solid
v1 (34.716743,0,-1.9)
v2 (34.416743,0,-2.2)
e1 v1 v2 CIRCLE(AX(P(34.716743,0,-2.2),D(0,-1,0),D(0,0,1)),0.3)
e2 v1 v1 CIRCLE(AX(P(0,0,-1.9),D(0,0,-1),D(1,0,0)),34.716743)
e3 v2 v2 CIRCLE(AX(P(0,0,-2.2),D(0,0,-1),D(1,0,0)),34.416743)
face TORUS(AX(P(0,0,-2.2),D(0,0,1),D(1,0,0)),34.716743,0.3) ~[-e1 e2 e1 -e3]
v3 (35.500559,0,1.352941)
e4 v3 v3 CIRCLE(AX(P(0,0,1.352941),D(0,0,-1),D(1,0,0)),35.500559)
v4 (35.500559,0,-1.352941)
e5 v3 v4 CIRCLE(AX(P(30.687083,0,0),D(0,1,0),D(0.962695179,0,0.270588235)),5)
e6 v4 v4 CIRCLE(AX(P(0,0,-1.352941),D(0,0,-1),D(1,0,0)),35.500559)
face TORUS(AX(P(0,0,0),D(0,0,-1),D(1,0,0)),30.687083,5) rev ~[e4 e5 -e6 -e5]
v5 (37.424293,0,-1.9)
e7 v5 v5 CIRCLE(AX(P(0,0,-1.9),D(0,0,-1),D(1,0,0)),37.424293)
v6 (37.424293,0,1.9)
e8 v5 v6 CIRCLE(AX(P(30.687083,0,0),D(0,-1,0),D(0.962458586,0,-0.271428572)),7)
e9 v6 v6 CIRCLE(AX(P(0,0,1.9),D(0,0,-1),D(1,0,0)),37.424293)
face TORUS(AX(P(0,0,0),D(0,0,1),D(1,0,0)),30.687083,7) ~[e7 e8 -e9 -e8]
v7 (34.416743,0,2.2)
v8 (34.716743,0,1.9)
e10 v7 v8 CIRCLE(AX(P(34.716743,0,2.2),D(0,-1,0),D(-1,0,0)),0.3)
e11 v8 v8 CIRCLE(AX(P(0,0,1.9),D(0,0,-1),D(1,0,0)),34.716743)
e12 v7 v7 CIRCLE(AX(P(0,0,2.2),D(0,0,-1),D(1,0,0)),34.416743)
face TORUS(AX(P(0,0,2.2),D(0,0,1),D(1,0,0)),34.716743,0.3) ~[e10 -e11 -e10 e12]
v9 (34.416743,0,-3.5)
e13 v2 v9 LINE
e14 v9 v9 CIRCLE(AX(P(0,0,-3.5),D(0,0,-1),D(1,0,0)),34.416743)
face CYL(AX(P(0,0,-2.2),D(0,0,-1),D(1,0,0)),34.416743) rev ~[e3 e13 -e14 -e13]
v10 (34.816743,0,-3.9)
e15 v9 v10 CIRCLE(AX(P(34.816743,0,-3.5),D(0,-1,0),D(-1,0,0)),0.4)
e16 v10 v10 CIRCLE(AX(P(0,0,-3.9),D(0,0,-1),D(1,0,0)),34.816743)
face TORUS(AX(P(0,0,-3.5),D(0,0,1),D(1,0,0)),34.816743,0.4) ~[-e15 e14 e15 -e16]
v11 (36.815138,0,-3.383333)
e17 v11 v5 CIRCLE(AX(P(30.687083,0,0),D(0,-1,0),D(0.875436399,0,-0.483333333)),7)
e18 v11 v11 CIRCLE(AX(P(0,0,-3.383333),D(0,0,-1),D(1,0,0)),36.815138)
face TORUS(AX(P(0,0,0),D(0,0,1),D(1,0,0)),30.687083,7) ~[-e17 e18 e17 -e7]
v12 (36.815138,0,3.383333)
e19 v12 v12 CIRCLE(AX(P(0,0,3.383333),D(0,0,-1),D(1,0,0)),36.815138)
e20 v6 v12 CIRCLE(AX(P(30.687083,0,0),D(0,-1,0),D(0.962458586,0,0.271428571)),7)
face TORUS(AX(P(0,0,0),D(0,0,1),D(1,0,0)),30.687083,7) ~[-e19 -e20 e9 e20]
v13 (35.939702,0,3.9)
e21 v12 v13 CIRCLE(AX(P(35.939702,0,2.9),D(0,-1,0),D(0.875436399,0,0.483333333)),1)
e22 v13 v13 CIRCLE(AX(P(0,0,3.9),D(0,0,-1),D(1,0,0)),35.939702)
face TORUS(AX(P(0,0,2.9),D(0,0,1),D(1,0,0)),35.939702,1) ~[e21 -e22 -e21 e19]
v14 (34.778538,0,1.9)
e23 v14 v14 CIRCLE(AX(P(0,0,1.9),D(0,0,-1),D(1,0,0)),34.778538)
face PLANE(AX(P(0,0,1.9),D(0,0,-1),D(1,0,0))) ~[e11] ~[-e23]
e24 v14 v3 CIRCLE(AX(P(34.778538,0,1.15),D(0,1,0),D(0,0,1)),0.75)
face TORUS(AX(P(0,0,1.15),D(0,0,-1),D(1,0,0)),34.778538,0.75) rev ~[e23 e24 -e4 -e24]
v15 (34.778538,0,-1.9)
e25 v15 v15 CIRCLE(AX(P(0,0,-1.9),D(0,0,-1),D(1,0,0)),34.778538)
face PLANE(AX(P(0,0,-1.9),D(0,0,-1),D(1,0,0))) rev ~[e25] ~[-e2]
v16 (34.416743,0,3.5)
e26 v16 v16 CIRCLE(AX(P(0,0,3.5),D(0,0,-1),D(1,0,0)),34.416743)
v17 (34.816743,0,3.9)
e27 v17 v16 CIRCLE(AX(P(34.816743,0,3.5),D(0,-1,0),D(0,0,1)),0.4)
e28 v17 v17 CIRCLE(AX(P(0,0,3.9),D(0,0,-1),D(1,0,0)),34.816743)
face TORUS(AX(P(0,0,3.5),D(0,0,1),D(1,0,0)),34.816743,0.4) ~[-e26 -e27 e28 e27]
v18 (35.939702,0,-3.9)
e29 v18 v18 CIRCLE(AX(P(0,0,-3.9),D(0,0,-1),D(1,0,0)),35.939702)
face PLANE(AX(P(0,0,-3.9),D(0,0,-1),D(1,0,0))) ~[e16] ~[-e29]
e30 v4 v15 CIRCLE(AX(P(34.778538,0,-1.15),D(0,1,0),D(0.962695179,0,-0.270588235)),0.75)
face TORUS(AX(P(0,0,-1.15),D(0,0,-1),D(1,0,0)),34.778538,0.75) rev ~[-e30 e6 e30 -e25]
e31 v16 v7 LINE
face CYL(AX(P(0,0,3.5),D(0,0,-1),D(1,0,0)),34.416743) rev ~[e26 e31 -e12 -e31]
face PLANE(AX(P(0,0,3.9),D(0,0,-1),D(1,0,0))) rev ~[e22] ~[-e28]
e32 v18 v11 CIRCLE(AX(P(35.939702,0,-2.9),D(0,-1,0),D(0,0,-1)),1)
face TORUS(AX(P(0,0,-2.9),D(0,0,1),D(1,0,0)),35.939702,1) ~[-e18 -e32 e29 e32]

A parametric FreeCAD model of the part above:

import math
import FreeCAD as App
import Part
import Sketcher
Q = App.Units.Quantity

doc = App.newDocument("Part")
params = doc.addObject("Spreadsheet::Sheet", "Params")
for row, (alias, value) in enumerate([
    ("sketch1_radius", "5 mm"),
    ("sketch1_radius2", "1 mm"),
    ("sketch1_radius3", "7 mm"),
    ("sketch1_radius4", "0.4 mm"),
    ("sketch1_radius5", "0.3 mm"),
    ("revolution_angle", "360 deg"),
], start=1):
    params.set(f"A{row}", alias)
    params.set(f"B{row}", "=" + value)
    params.setAlias(f"B{row}", alias)

body = doc.addObject("PartDesign::Body", "Body")

# Sketch on XZ plane
sketch1 = body.newObject("Sketcher::SketchObject", "Sketch")
sketch1.AttachmentSupport = (doc.getObject("XZ_Plane"), [""])
sketch1.MapMode = "FlatFace"
sketch1.addGeometry([
    Part.LineSegment(App.Vector(35.94, 3.9, 0), App.Vector(34.82, 3.9, 0)),  # 0
    Part.ArcOfCircle(Part.Circle(App.Vector(34.82, 3.5, 0), App.Vector(0, 0, 1), 0.4), math.radians(90), math.radians(180)),  # 1
    Part.LineSegment(App.Vector(34.42, 3.5, 0), App.Vector(34.42, 2.2, 0)),  # 2
    Part.ArcOfCircle(Part.Circle(App.Vector(34.72, 2.2, 0), App.Vector(0, 0, 1), 0.3), math.radians(180), math.radians(270)),  # 3
    Part.LineSegment(App.Vector(34.72, 1.9, 0), App.Vector(34.78, 1.9, 0)),  # 4
    Part.ArcOfCircle(Part.Circle(App.Vector(34.78, 1.15, 0), App.Vector(0, 0, 1), 0.75), math.radians(16), math.radians(90)),  # 5
    Part.ArcOfCircle(Part.Circle(App.Vector(30.69, 0, 0), App.Vector(0, 0, 1), 5), math.radians(-16), math.radians(16)),  # 6
    Part.ArcOfCircle(Part.Circle(App.Vector(34.78, -1.15, 0), App.Vector(0, 0, 1), 0.75), math.radians(-90), math.radians(-16)),  # 7
    Part.LineSegment(App.Vector(34.78, -1.9, 0), App.Vector(34.72, -1.9, 0)),  # 8
    Part.ArcOfCircle(Part.Circle(App.Vector(34.72, -2.2, 0), App.Vector(0, 0, 1), 0.3), math.radians(90), math.radians(180)),  # 9
    Part.LineSegment(App.Vector(34.42, -2.2, 0), App.Vector(34.42, -3.5, 0)),  # 10
    Part.ArcOfCircle(Part.Circle(App.Vector(34.82, -3.5, 0), App.Vector(0, 0, 1), 0.4), math.radians(180), math.radians(270)),  # 11
    Part.LineSegment(App.Vector(34.82, -3.9, 0), App.Vector(35.94, -3.9, 0)),  # 12
    Part.ArcOfCircle(Part.Circle(App.Vector(35.94, -2.9, 0), App.Vector(0, 0, 1), 1), math.radians(-90), math.radians(-29)),  # 13
    Part.ArcOfCircle(Part.Circle(App.Vector(30.69, 0, 0), App.Vector(0, 0, 1), 7), math.radians(-28.9), math.radians(-15.75)),  # 14
    Part.ArcOfCircle(Part.Circle(App.Vector(30.69, 0, 0), App.Vector(0, 0, 1), 7), math.radians(-16), math.radians(16)),  # 15
    Part.ArcOfCircle(Part.Circle(App.Vector(30.69, 0, 0), App.Vector(0, 0, 1), 7), math.radians(15.75), math.radians(28.9)),  # 16
    Part.ArcOfCircle(Part.Circle(App.Vector(35.94, 2.9, 0), App.Vector(0, 0, 1), 1), math.radians(29), math.radians(90)),  # 17
], False)
sketch1.addConstraint([
    Sketcher.Constraint("Tangent", 0, 2, 1, 1),
    Sketcher.Constraint("Tangent", 1, 2, 2, 1),
    Sketcher.Constraint("Tangent", 2, 2, 3, 1),
    Sketcher.Constraint("Tangent", 3, 2, 4, 1),
    Sketcher.Constraint("Tangent", 4, 2, 5, 2),
    Sketcher.Constraint("Tangent", 5, 1, 6, 2),
    Sketcher.Constraint("Tangent", 6, 1, 7, 2),
    Sketcher.Constraint("Tangent", 7, 1, 8, 1),
    Sketcher.Constraint("Tangent", 8, 2, 9, 1),
    Sketcher.Constraint("Tangent", 9, 2, 10, 1),
    Sketcher.Constraint("Tangent", 10, 2, 11, 1),
    Sketcher.Constraint("Tangent", 11, 2, 12, 1),
    Sketcher.Constraint("Tangent", 12, 2, 13, 1),
    Sketcher.Constraint("Tangent", 13, 2, 14, 1),
    Sketcher.Constraint("Tangent", 14, 2, 15, 1),
    Sketcher.Constraint("Tangent", 15, 2, 16, 1),
    Sketcher.Constraint("Tangent", 16, 2, 17, 1),
    Sketcher.Constraint("Tangent", 17, 2, 0, 1),
    Sketcher.Constraint("Horizontal", 0),
    Sketcher.Constraint("Vertical", 2),
    Sketcher.Constraint("Horizontal", 4),
    Sketcher.Constraint("Horizontal", 8),
    Sketcher.Constraint("Vertical", 10),
    Sketcher.Constraint("Horizontal", 12),
    Sketcher.Constraint("Coincident", 14, 3, 6, 3),
    Sketcher.Constraint("Coincident", 16, 3, 6, 3),
    Sketcher.Constraint("Equal", 5, 7),
    Sketcher.Constraint("Equal", 3, 9),
    Sketcher.Constraint("Equal", 1, 11),
    Sketcher.Constraint("Equal", 13, 17),
    Sketcher.Constraint("Symmetric", 5, 3, 7, 3, -1),
    Sketcher.Constraint("Symmetric", 1, 3, 11, 3, -1),
    Sketcher.Constraint("Horizontal", 8, 2, 14, 2),
    Sketcher.Constraint("Horizontal", 4, 2, 15, 2),
    Sketcher.Constraint("Radius", 6, Q("5 mm")),
    Sketcher.Constraint("Radius", 13, Q("1 mm")),
    Sketcher.Constraint("Radius", 14, Q("7 mm")),
    Sketcher.Constraint("Radius", 1, Q("0.4 mm")),
    Sketcher.Constraint("Radius", 3, Q("0.3 mm")),
    Sketcher.Constraint("Radius", 5, Q("0.75 mm")),
    Sketcher.Constraint("DistanceY", 2, 2, 2, 1, Q("1.3 mm")),
    Sketcher.Constraint("DistanceY", -1, 1, 1, 3, Q("3.5 mm")),
    Sketcher.Constraint("DistanceX", 0, 2, 0, 1, Q("1.122959 mm")),
    Sketcher.Constraint("DistanceX", -1, 1, 13, 3, Q("35.939702 mm")),
])
sketch1.setExpression("Constraints[34]", "Params.sketch1_radius")
sketch1.setExpression("Constraints[35]", "Params.sketch1_radius2")
sketch1.setExpression("Constraints[36]", "Params.sketch1_radius3")
sketch1.setExpression("Constraints[37]", "Params.sketch1_radius4")
sketch1.setExpression("Constraints[38]", "Params.sketch1_radius5")
revolution = body.newObject("PartDesign::Revolution", "Revolution")
revolution.Profile = sketch1
revolution.ReferenceAxis = (sketch1, ["V_Axis"])
revolution.setExpression("Angle", "Params.revolution_angle")

doc.recompute()
